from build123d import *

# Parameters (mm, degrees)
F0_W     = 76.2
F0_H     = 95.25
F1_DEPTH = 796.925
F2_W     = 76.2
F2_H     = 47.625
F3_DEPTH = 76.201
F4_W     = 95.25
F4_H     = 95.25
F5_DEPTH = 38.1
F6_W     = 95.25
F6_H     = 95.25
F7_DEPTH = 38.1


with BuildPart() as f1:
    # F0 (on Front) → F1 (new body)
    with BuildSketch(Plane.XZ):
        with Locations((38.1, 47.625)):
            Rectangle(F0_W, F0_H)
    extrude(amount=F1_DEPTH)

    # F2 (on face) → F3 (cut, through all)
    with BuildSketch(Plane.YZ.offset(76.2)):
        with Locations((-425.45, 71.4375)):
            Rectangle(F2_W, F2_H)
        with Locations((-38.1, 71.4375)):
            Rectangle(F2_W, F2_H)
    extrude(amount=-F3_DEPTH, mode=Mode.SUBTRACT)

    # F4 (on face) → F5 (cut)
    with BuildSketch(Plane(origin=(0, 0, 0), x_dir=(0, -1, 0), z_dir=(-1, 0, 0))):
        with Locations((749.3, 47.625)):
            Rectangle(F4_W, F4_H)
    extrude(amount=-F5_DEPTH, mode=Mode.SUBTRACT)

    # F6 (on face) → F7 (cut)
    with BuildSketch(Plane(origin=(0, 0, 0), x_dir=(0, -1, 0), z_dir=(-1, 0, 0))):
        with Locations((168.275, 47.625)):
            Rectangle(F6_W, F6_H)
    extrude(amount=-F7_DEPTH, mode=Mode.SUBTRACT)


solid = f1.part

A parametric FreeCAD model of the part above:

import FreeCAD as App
import Part
import Sketcher
Q = App.Units.Quantity


def add_polygon(sketch, points):
    """Adds a closed chain of lines whose ends are joined by coincident constraints."""
    first, n = sketch.GeometryCount, len(points)
    for a, b in zip(points, points[1:] + points[:1]):
        sketch.addGeometry(Part.LineSegment(App.Vector(*a, 0), App.Vector(*b, 0)), False)
    for i in range(n):
        sketch.addConstraint(Sketcher.Constraint("Coincident", first + i, 2, first + (i + 1) % n, 1))

doc = App.newDocument("Part")
params = doc.addObject("Spreadsheet::Sheet", "Params")
for row, (alias, value) in enumerate([
    ("sketch1_width", "3 in"),
    ("sketch1_height", "3.75 in"),
    ("pad1_length", "31.375 in"),
    ("sketch2_width", "3 in"),
    ("sketch2_height", "1.875 in"),
    ("sketch3_width", "3.75 in"),
    ("pocket2_length", "1.5 in"),
    ("sketch4_width", "3.75 in"),
    ("pocket3_length", "1.5 in"),
], start=1):
    params.set(f"A{row}", alias)
    params.set(f"B{row}", "=" + value)
    params.setAlias(f"B{row}", alias)

body = doc.addObject("PartDesign::Body", "Body")

# Sketch on XZ plane
sketch1 = body.newObject("Sketcher::SketchObject", "Sketch")
sketch1.AttachmentSupport = (doc.getObject("XZ_Plane"), [""])
sketch1.MapMode = "FlatFace"
add_polygon(sketch1, [(0, 95.25), (0, 0), (76.2, 0), (76.2, 95.25)])  # lines 0-3
sketch1.addConstraint(Sketcher.Constraint("Vertical", 0))
sketch1.addConstraint(Sketcher.Constraint("Horizontal", 1))
sketch1.addConstraint(Sketcher.Constraint("Vertical", 2))
sketch1.addConstraint(Sketcher.Constraint("Horizontal", 3))
sketch1.addConstraint(Sketcher.Constraint("Coincident", 0, 2, -1, 1))
sketch1.addConstraint(Sketcher.Constraint("DistanceX", 1, 1, 1, 2, Q("3 in")))
sketch1.addConstraint(Sketcher.Constraint("DistanceY", 0, 2, 0, 1, Q("3.75 in")))
sketch1.setExpression("Constraints[9]", "Params.sketch1_width")
sketch1.setExpression("Constraints[10]", "Params.sketch1_height")
pad1 = body.newObject("PartDesign::Pad", "Pad")
pad1.Profile = sketch1
pad1.setExpression("Length", "Params.pad1_length")

# Sketch on YZ plane
sketch2 = body.newObject("Sketcher::SketchObject", "Sketch001")
sketch2.AttachmentSupport = (doc.getObject("YZ_Plane"), [""])
sketch2.MapMode = "FlatFace"
sketch2.AttachmentOffset = App.Placement(App.Vector(0, 0, 3 * 25.4), App.Rotation())
add_polygon(sketch2, [(-463.55, 95.25), (-463.55, 47.625), (-387.35, 47.625), (-387.35, 95.25)])  # lines 0-3
add_polygon(sketch2, [(-76.2, 95.25), (-76.2, 47.625), (0, 47.625), (0, 95.25)])  # lines 4-7
sketch2.addConstraint(Sketcher.Constraint("Vertical", 0))
sketch2.addConstraint(Sketcher.Constraint("Horizontal", 1))
sketch2.addConstraint(Sketcher.Constraint("Vertical", 2))
sketch2.addConstraint(Sketcher.Constraint("Horizontal", 3))
sketch2.addConstraint(Sketcher.Constraint("Vertical", 4))
sketch2.addConstraint(Sketcher.Constraint("Horizontal", 5))
sketch2.addConstraint(Sketcher.Constraint("Vertical", 6))
sketch2.addConstraint(Sketcher.Constraint("Horizontal", 7))
sketch2.addConstraint(Sketcher.Constraint("PointOnObject", 5, 2, -2))
sketch2.addConstraint(Sketcher.Constraint("Horizontal", 1, 2, 4, 2))
sketch2.addConstraint(Sketcher.Constraint("Horizontal", 3, 2, 6, 2))
sketch2.addConstraint(Sketcher.Constraint("Equal", 3, 5))
sketch2.addConstraint(Sketcher.Constraint("DistanceX", 1, 1, 1, 2, Q("3 in")))
sketch2.addConstraint(Sketcher.Constraint("DistanceY", 0, 2, 0, 1, Q("1.875 in")))
sketch2.addConstraint(Sketcher.Constraint("DistanceX", 0, 2, -1, 1, Q("18.25 in")))
sketch2.addConstraint(Sketcher.Constraint("DistanceY", -1, 1, 2, 2, Q("3.75 in")))
sketch2.setExpression("Constraints[20]", "Params.sketch2_width")
sketch2.setExpression("Constraints[21]", "Params.sketch2_height")
pocket1 = body.newObject("PartDesign::Pocket", "Pocket")
pocket1.Profile = sketch2
pocket1.Type = "ThroughAll"

# Sketch on YZ plane
sketch3 = body.newObject("Sketcher::SketchObject", "Sketch002")
sketch3.AttachmentSupport = (doc.getObject("YZ_Plane"), [""])
sketch3.MapMode = "FlatFace"
add_polygon(sketch3, [(-701.675, 95.25), (-701.675, 0), (-796.925, 0), (-796.925, 95.25)])  # lines 0-3
sketch3.addConstraint(Sketcher.Constraint("Vertical", 0))
sketch3.addConstraint(Sketcher.Constraint("Horizontal", 1))
sketch3.addConstraint(Sketcher.Constraint("Vertical", 2))
sketch3.addConstraint(Sketcher.Constraint("Horizontal", 3))
sketch3.addConstraint(Sketcher.Constraint("PointOnObject", 0, 2, -1))
sketch3.addConstraint(Sketcher.Constraint("Equal", 3, 0))
sketch3.addConstraint(Sketcher.Constraint("DistanceX", 1, 2, 1, 1, Q("3.75 in")))
sketch3.addConstraint(Sketcher.Constraint("DistanceX", 0, 2, -1, 1, Q("27.625 in")))
sketch3.setExpression("Constraints[10]", "Params.sketch3_width")
pocket2 = body.newObject("PartDesign::Pocket", "Pocket001")
pocket2.Profile = sketch3
pocket2.setExpression("Length", "Params.pocket2_length")
pocket2.Reversed = True

# Sketch on YZ plane
sketch4 = body.newObject("Sketcher::SketchObject", "Sketch003")
sketch4.AttachmentSupport = (doc.getObject("YZ_Plane"), [""])
sketch4.MapMode = "FlatFace"
add_polygon(sketch4, [(-120.65, 95.25), (-120.65, 0), (-215.9, 0), (-215.9, 95.25)])  # lines 0-3
sketch4.addConstraint(Sketcher.Constraint("Vertical", 0))
sketch4.addConstraint(Sketcher.Constraint("Horizontal", 1))
sketch4.addConstraint(Sketcher.Constraint("Vertical", 2))
sketch4.addConstraint(Sketcher.Constraint("Horizontal", 3))
sketch4.addConstraint(Sketcher.Constraint("PointOnObject", 0, 2, -1))
sketch4.addConstraint(Sketcher.Constraint("Equal", 3, 0))
sketch4.addConstraint(Sketcher.Constraint("DistanceX", 1, 2, 1, 1, Q("3.75 in")))
sketch4.addConstraint(Sketcher.Constraint("DistanceX", 1, 2, -1, 1, Q("8.5 in")))
sketch4.setExpression("Constraints[10]", "Params.sketch4_width")
pocket3 = body.newObject("PartDesign::Pocket", "Pocket002")
pocket3.Profile = sketch4
pocket3.setExpression("Length", "Params.pocket3_length")
pocket3.Reversed = True

doc.recompute()
